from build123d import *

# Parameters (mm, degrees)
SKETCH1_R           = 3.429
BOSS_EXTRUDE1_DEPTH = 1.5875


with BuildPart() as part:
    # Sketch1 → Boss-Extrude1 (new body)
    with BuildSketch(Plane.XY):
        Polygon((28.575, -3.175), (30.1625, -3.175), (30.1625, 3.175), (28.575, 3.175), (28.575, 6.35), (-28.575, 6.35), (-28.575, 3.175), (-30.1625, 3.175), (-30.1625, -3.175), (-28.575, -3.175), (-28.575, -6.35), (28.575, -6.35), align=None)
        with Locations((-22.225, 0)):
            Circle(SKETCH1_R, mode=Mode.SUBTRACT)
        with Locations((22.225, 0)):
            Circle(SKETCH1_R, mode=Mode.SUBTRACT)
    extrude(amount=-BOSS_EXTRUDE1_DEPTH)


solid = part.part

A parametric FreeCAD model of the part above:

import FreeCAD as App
import Part
import Sketcher
from FreeCAD import Vector
Q = App.Units.Quantity


def add_polygon(sketch, points):
    """Adds a closed chain of lines whose ends are joined by coincident constraints."""
    first, n = sketch.GeometryCount, len(points)
    for a, b in zip(points, points[1:] + points[:1]):
        sketch.addGeometry(Part.LineSegment(App.Vector(*a, 0), App.Vector(*b, 0)), False)
    for i in range(n):
        sketch.addConstraint(Sketcher.Constraint("Coincident", first + i, 2, first + (i + 1) % n, 1))

doc = App.newDocument("Part")
body = doc.addObject("PartDesign::Body", "Body")

# Sketch on XY plane
sketch1 = body.newObject("Sketcher::SketchObject", "Sketch")
sketch1.AttachmentSupport = (doc.getObject("XY_Plane"), [""])
sketch1.MapMode = "FlatFace"
add_polygon(sketch1, [(28.6, -3.2), (30.2, -3.2), (30.2, 3.2), (28.6, 3.2), (28.6, 6.3), (-28.6, 6.3), (-28.6, 3.2), (-30.2, 3.2), (-30.2, -3.2), (-28.6, -3.2), (-28.6, -6.3), (28.6, -6.3)])  # lines 0-11
sketch1.addGeometry(Part.Circle(Vector(-22.2, 0, 0), Vector(0, 0, 1), 3.4), False)  # 12
sketch1.addGeometry(Part.Circle(Vector(22.2, 0, 0), Vector(0, 0, 1), 3.4), False)  # 13
sketch1.addConstraint([
    Sketcher.Constraint("Horizontal", 0),
    Sketcher.Constraint("Vertical", 1),
    Sketcher.Constraint("Horizontal", 2),
    Sketcher.Constraint("Vertical", 3),
    Sketcher.Constraint("Horizontal", 4),
    Sketcher.Constraint("Vertical", 5),
    Sketcher.Constraint("Horizontal", 6),
    Sketcher.Constraint("Vertical", 7),
    Sketcher.Constraint("Horizontal", 8),
    Sketcher.Constraint("Vertical", 9),
    Sketcher.Constraint("Horizontal", 10),
    Sketcher.Constraint("Vertical", 11),
    Sketcher.Constraint("Equal", 12, 13),
    Sketcher.Constraint("Symmetric", 12, 3, 13, 3, -1, 1),
    Sketcher.Constraint("Symmetric", 0, 2, 6, 2, -1, 1),
    Sketcher.Constraint("Symmetric", 2, 2, 8, 2, -1, 1),
    Sketcher.Constraint("Symmetric", 4, 2, 10, 2, -1, 1),
    Sketcher.Constraint("Symmetric", 2, 2, 5, 2, -2),
    Sketcher.Constraint("PointOnObject", 12, 3, -1),
    Sketcher.Constraint("Diameter", 12, Q("0.27 in")),
    Sketcher.Constraint("DistanceX", 12, 3, 2, 2, Q("2 in")),
    Sketcher.Constraint("DistanceX", 4, 2, 4, 1, Q("2.25 in")),
    Sketcher.Constraint("DistanceY", 1, 1, 1, 2, Q("0.25 in")),
    Sketcher.Constraint("DistanceY", 10, 2, 3, 2, Q("0.5 in")),
    Sketcher.Constraint("DistanceX", 0, 1, 0, 2, Q("0.0625 in")),
])
pad1 = body.newObject("PartDesign::Pad", "Pad")
pad1.Profile = sketch1
pad1.Length = Q("0.0625 in")
pad1.Reversed = True

doc.recompute()
